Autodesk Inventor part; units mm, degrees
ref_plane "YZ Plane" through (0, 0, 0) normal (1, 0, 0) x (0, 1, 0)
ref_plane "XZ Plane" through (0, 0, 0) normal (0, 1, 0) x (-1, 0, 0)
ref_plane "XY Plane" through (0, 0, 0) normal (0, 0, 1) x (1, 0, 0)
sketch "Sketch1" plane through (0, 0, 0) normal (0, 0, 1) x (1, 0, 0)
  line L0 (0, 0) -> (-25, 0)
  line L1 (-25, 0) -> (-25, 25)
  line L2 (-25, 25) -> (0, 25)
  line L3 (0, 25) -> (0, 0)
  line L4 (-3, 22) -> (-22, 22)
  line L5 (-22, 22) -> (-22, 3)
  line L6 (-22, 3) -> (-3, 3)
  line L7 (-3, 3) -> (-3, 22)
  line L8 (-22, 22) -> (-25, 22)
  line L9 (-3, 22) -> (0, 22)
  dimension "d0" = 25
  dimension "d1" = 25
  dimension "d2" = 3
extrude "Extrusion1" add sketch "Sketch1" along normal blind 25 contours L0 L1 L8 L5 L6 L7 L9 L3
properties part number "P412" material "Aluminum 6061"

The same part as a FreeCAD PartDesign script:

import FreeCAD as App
import Part
import Sketcher

doc = App.newDocument("Part")
body = doc.addObject("PartDesign::Body", "Body")

# Sketch on XY plane
sketch1 = body.newObject("Sketcher::SketchObject", "Sketch")
sketch1.AttachmentSupport = (doc.getObject("XY_Plane"), [""])
sketch1.MapMode = "FlatFace"
sketch1.addGeometry(Part.LineSegment(App.Vector(-25, 0, 0), App.Vector(0, 0, 0)), False)
sketch1.addGeometry(Part.LineSegment(App.Vector(0, 0, 0), App.Vector(0, 22, 0)), False)
sketch1.addGeometry(Part.LineSegment(App.Vector(0, 22, 0), App.Vector(-3, 22, 0)), False)
sketch1.addGeometry(Part.LineSegment(App.Vector(-3, 22, 0), App.Vector(-3, 3, 0)), False)
sketch1.addGeometry(Part.LineSegment(App.Vector(-3, 3, 0), App.Vector(-22, 3, 0)), False)
sketch1.addGeometry(Part.LineSegment(App.Vector(-22, 3, 0), App.Vector(-22, 22, 0)), False)
sketch1.addGeometry(Part.LineSegment(App.Vector(-22, 22, 0), App.Vector(-25, 22, 0)), False)
sketch1.addGeometry(Part.LineSegment(App.Vector(-25, 22, 0), App.Vector(-25, 0, 0)), False)
sketch1.addConstraint(Sketcher.Constraint("Coincident", 0, 2, 1, 1))
sketch1.addConstraint(Sketcher.Constraint("Coincident", 1, 2, 2, 1))
sketch1.addConstraint(Sketcher.Constraint("Coincident", 2, 2, 3, 1))
sketch1.addConstraint(Sketcher.Constraint("Coincident", 3, 2, 4, 1))
sketch1.addConstraint(Sketcher.Constraint("Coincident", 4, 2, 5, 1))
sketch1.addConstraint(Sketcher.Constraint("Coincident", 5, 2, 6, 1))
sketch1.addConstraint(Sketcher.Constraint("Coincident", 6, 2, 7, 1))
sketch1.addConstraint(Sketcher.Constraint("Coincident", 7, 2, 0, 1))
sketch1.addConstraint(Sketcher.Constraint("Horizontal", 0))
sketch1.addConstraint(Sketcher.Constraint("Vertical", 1))
sketch1.addConstraint(Sketcher.Constraint("Horizontal", 2))
sketch1.addConstraint(Sketcher.Constraint("Vertical", 3))
sketch1.addConstraint(Sketcher.Constraint("Horizontal", 4))
sketch1.addConstraint(Sketcher.Constraint("Vertical", 5))
sketch1.addConstraint(Sketcher.Constraint("Horizontal", 6))
sketch1.addConstraint(Sketcher.Constraint("Vertical", 7))
sketch1.addConstraint(Sketcher.Constraint("Coincident", 0, 2, -1, 1))
sketch1.addConstraint(Sketcher.Constraint("Horizontal", 2, 2, 5, 2))
sketch1.addConstraint(Sketcher.Constraint("Equal", 2, 6))
sketch1.addConstraint(Sketcher.Constraint("Equal", 4, 3))
sketch1.addConstraint(Sketcher.Constraint("DistanceX", 0, 1, 0, 2, 25.0))
sketch1.addConstraint(Sketcher.Constraint("DistanceX", 2, 2, 2, 1, 3.0))
sketch1.addConstraint(Sketcher.Constraint("DistanceY", -1, 1, 3, 2, 3.0))
pad1 = body.newObject("PartDesign::Pad", "Pad")
pad1.Profile = sketch1
pad1.Length = 25

doc.recompute()
